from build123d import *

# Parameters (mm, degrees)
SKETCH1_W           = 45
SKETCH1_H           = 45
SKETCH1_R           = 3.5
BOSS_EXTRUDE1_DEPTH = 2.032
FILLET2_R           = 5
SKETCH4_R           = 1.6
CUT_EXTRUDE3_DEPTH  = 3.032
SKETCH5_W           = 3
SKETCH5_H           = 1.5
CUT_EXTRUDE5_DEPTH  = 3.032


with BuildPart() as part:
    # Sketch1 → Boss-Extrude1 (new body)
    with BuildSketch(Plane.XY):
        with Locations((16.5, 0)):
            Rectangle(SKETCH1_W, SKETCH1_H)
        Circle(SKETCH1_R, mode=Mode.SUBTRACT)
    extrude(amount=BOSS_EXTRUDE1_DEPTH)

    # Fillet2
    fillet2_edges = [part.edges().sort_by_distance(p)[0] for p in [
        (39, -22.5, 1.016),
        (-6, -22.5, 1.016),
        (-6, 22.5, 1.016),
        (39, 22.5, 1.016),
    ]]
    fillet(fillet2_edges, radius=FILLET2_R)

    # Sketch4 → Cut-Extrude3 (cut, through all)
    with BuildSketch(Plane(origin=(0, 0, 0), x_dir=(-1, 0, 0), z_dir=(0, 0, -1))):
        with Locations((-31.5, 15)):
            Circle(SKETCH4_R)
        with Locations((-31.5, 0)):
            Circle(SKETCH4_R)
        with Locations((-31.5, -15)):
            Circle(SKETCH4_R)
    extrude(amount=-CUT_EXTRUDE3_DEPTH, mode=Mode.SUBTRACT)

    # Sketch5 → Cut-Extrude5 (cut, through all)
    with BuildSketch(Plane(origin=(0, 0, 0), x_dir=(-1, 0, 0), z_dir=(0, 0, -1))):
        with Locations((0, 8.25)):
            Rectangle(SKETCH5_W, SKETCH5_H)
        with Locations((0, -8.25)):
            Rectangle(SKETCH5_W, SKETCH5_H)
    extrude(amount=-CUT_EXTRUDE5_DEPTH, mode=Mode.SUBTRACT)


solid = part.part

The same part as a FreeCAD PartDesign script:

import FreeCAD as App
import Part
import Sketcher

V = App.Vector
Q = App.Units.Quantity


def edges_at(feature, points):
    """Names of the edges that pass closest to the given points."""
    edges = feature.Shape.Edges
    near = lambda p: min(range(len(edges)), key=lambda i: edges[i].distToShape(Part.Vertex(*p))[0])
    return sorted({f"Edge{near(p) + 1}" for p in points})


def add_polygon(sketch, points):
    """Adds a closed chain of lines whose ends are joined by coincident constraints."""
    first, n = sketch.GeometryCount, len(points)
    for a, b in zip(points, points[1:] + points[:1]):
        sketch.addGeometry(Part.LineSegment(App.Vector(*a, 0), App.Vector(*b, 0)), False)
    for i in range(n):
        sketch.addConstraint(Sketcher.Constraint("Coincident", first + i, 2, first + (i + 1) % n, 1))

doc = App.newDocument("Part")
body = doc.addObject("PartDesign::Body", "Body")

sketch1 = doc.addObject("Sketcher::SketchObject", "Sketch")
body.addObject(sketch1)
sketch1.AttachmentSupport = (doc.XY_Plane, [""])
sketch1.MapMode = "FlatFace"
add_polygon(sketch1, [(-6, 22.5), (-6, -22.5), (39, -22.5), (39, 22.5)])
sketch1.addGeometry(Part.Circle(V(0, 0, 0), V(0, 0, 1), 3.5), False)
sketch1.addConstraint(Sketcher.Constraint("Vertical", 0))
sketch1.addConstraint(Sketcher.Constraint("Horizontal", 1))
sketch1.addConstraint(Sketcher.Constraint("Vertical", 2))
sketch1.addConstraint(Sketcher.Constraint("Horizontal", 3))
sketch1.addConstraint(Sketcher.Constraint("Coincident", 4, 3, -1, 1))
sketch1.addConstraint(Sketcher.Constraint("Equal", 3, 0))
sketch1.addConstraint(Sketcher.Constraint("Diameter", 4, Q("7 mm")))
sketch1.addConstraint(Sketcher.Constraint("DistanceX", 1, 1, 1, 2, Q("45 mm")))
sketch1.addConstraint(Sketcher.Constraint("DistanceX", 0, 2, -1, 1, Q("6 mm")))
sketch1.addConstraint(Sketcher.Constraint("DistanceY", 0, 2, -1, 1, Q("22.5 mm")))
pad1 = doc.addObject("PartDesign::Pad", "Pad")
body.addObject(pad1)
pad1.Profile = sketch1
pad1.Length = 2.032
doc.recompute()

fillet = doc.addObject("PartDesign::Fillet", "Fillet")
body.addObject(fillet)
fillet.Base = (pad1, edges_at(pad1, [
    (39, -22.5, 1.016),
    (-6, -22.5, 1.016),
    (-6, 22.5, 1.016),
    (39, 22.5, 1.016),
]))
fillet.Radius = 5

sketch2 = doc.addObject("Sketcher::SketchObject", "Sketch001")
body.addObject(sketch2)
sketch2.AttachmentSupport = (doc.XY_Plane, [""])
sketch2.MapMode = "FlatFace"
sketch2.addGeometry(Part.Circle(V(31.5, 15, 0), V(0, 0, 1), 1.6), False)
sketch2.addGeometry(Part.Circle(V(31.5, 0, 0), V(0, 0, 1), 1.6), False)
sketch2.addGeometry(Part.Circle(V(31.5, -15, 0), V(0, 0, 1), 1.6), False)
sketch2.addConstraint(Sketcher.Constraint("Equal", 0, 1))
sketch2.addConstraint(Sketcher.Constraint("Equal", 1, 2))
sketch2.addConstraint(Sketcher.Constraint("Symmetric", 0, 3, 2, 3, -1))
sketch2.addConstraint(Sketcher.Constraint("PointOnObject", 1, 3, -1))
sketch2.addConstraint(Sketcher.Constraint("Vertical", 0, 3, 1, 3))
sketch2.addConstraint(Sketcher.Constraint("Diameter", 0, Q("3.2 mm")))
sketch2.addConstraint(Sketcher.Constraint("DistanceY", -1, 1, 0, 3, Q("15 mm")))
sketch2.addConstraint(Sketcher.Constraint("DistanceX", -1, 1, 0, 3, Q("31.5 mm")))
pocket1 = doc.addObject("PartDesign::Pocket", "Pocket")
body.addObject(pocket1)
pocket1.Profile = sketch2
pocket1.Type = "ThroughAll"
pocket1.Reversed = True

sketch3 = doc.addObject("Sketcher::SketchObject", "Sketch002")
body.addObject(sketch3)
sketch3.AttachmentSupport = (doc.XY_Plane, [""])
sketch3.MapMode = "FlatFace"
add_polygon(sketch3, [(1.5, 9), (1.5, 7.5), (-1.5, 7.5), (-1.5, 9)])
add_polygon(sketch3, [(1.5, -7.5), (1.5, -9), (-1.5, -9), (-1.5, -7.5)])
sketch3.addConstraint(Sketcher.Constraint("Vertical", 0))
sketch3.addConstraint(Sketcher.Constraint("Horizontal", 1))
sketch3.addConstraint(Sketcher.Constraint("Vertical", 2))
sketch3.addConstraint(Sketcher.Constraint("Horizontal", 3))
sketch3.addConstraint(Sketcher.Constraint("Vertical", 4))
sketch3.addConstraint(Sketcher.Constraint("Horizontal", 5))
sketch3.addConstraint(Sketcher.Constraint("Vertical", 6))
sketch3.addConstraint(Sketcher.Constraint("Horizontal", 7))
sketch3.addConstraint(Sketcher.Constraint("Symmetric", 2, 2, 4, 2, -1, 1))
sketch3.addConstraint(Sketcher.Constraint("Symmetric", 0, 2, 6, 2, -1, 1))
sketch3.addConstraint(Sketcher.Constraint("Vertical", 3, 2, 4, 2))
sketch3.addConstraint(Sketcher.Constraint("DistanceX", 1, 2, 1, 1, Q("3 mm")))
sketch3.addConstraint(Sketcher.Constraint("DistanceY", 0, 2, 0, 1, Q("1.5 mm")))
sketch3.addConstraint(Sketcher.Constraint("DistanceY", -1, 1, 2, 2, Q("9 mm")))
pocket2 = doc.addObject("PartDesign::Pocket", "Pocket001")
body.addObject(pocket2)
pocket2.Profile = sketch3
pocket2.Type = "ThroughAll"
pocket2.Reversed = True

doc.recompute()
